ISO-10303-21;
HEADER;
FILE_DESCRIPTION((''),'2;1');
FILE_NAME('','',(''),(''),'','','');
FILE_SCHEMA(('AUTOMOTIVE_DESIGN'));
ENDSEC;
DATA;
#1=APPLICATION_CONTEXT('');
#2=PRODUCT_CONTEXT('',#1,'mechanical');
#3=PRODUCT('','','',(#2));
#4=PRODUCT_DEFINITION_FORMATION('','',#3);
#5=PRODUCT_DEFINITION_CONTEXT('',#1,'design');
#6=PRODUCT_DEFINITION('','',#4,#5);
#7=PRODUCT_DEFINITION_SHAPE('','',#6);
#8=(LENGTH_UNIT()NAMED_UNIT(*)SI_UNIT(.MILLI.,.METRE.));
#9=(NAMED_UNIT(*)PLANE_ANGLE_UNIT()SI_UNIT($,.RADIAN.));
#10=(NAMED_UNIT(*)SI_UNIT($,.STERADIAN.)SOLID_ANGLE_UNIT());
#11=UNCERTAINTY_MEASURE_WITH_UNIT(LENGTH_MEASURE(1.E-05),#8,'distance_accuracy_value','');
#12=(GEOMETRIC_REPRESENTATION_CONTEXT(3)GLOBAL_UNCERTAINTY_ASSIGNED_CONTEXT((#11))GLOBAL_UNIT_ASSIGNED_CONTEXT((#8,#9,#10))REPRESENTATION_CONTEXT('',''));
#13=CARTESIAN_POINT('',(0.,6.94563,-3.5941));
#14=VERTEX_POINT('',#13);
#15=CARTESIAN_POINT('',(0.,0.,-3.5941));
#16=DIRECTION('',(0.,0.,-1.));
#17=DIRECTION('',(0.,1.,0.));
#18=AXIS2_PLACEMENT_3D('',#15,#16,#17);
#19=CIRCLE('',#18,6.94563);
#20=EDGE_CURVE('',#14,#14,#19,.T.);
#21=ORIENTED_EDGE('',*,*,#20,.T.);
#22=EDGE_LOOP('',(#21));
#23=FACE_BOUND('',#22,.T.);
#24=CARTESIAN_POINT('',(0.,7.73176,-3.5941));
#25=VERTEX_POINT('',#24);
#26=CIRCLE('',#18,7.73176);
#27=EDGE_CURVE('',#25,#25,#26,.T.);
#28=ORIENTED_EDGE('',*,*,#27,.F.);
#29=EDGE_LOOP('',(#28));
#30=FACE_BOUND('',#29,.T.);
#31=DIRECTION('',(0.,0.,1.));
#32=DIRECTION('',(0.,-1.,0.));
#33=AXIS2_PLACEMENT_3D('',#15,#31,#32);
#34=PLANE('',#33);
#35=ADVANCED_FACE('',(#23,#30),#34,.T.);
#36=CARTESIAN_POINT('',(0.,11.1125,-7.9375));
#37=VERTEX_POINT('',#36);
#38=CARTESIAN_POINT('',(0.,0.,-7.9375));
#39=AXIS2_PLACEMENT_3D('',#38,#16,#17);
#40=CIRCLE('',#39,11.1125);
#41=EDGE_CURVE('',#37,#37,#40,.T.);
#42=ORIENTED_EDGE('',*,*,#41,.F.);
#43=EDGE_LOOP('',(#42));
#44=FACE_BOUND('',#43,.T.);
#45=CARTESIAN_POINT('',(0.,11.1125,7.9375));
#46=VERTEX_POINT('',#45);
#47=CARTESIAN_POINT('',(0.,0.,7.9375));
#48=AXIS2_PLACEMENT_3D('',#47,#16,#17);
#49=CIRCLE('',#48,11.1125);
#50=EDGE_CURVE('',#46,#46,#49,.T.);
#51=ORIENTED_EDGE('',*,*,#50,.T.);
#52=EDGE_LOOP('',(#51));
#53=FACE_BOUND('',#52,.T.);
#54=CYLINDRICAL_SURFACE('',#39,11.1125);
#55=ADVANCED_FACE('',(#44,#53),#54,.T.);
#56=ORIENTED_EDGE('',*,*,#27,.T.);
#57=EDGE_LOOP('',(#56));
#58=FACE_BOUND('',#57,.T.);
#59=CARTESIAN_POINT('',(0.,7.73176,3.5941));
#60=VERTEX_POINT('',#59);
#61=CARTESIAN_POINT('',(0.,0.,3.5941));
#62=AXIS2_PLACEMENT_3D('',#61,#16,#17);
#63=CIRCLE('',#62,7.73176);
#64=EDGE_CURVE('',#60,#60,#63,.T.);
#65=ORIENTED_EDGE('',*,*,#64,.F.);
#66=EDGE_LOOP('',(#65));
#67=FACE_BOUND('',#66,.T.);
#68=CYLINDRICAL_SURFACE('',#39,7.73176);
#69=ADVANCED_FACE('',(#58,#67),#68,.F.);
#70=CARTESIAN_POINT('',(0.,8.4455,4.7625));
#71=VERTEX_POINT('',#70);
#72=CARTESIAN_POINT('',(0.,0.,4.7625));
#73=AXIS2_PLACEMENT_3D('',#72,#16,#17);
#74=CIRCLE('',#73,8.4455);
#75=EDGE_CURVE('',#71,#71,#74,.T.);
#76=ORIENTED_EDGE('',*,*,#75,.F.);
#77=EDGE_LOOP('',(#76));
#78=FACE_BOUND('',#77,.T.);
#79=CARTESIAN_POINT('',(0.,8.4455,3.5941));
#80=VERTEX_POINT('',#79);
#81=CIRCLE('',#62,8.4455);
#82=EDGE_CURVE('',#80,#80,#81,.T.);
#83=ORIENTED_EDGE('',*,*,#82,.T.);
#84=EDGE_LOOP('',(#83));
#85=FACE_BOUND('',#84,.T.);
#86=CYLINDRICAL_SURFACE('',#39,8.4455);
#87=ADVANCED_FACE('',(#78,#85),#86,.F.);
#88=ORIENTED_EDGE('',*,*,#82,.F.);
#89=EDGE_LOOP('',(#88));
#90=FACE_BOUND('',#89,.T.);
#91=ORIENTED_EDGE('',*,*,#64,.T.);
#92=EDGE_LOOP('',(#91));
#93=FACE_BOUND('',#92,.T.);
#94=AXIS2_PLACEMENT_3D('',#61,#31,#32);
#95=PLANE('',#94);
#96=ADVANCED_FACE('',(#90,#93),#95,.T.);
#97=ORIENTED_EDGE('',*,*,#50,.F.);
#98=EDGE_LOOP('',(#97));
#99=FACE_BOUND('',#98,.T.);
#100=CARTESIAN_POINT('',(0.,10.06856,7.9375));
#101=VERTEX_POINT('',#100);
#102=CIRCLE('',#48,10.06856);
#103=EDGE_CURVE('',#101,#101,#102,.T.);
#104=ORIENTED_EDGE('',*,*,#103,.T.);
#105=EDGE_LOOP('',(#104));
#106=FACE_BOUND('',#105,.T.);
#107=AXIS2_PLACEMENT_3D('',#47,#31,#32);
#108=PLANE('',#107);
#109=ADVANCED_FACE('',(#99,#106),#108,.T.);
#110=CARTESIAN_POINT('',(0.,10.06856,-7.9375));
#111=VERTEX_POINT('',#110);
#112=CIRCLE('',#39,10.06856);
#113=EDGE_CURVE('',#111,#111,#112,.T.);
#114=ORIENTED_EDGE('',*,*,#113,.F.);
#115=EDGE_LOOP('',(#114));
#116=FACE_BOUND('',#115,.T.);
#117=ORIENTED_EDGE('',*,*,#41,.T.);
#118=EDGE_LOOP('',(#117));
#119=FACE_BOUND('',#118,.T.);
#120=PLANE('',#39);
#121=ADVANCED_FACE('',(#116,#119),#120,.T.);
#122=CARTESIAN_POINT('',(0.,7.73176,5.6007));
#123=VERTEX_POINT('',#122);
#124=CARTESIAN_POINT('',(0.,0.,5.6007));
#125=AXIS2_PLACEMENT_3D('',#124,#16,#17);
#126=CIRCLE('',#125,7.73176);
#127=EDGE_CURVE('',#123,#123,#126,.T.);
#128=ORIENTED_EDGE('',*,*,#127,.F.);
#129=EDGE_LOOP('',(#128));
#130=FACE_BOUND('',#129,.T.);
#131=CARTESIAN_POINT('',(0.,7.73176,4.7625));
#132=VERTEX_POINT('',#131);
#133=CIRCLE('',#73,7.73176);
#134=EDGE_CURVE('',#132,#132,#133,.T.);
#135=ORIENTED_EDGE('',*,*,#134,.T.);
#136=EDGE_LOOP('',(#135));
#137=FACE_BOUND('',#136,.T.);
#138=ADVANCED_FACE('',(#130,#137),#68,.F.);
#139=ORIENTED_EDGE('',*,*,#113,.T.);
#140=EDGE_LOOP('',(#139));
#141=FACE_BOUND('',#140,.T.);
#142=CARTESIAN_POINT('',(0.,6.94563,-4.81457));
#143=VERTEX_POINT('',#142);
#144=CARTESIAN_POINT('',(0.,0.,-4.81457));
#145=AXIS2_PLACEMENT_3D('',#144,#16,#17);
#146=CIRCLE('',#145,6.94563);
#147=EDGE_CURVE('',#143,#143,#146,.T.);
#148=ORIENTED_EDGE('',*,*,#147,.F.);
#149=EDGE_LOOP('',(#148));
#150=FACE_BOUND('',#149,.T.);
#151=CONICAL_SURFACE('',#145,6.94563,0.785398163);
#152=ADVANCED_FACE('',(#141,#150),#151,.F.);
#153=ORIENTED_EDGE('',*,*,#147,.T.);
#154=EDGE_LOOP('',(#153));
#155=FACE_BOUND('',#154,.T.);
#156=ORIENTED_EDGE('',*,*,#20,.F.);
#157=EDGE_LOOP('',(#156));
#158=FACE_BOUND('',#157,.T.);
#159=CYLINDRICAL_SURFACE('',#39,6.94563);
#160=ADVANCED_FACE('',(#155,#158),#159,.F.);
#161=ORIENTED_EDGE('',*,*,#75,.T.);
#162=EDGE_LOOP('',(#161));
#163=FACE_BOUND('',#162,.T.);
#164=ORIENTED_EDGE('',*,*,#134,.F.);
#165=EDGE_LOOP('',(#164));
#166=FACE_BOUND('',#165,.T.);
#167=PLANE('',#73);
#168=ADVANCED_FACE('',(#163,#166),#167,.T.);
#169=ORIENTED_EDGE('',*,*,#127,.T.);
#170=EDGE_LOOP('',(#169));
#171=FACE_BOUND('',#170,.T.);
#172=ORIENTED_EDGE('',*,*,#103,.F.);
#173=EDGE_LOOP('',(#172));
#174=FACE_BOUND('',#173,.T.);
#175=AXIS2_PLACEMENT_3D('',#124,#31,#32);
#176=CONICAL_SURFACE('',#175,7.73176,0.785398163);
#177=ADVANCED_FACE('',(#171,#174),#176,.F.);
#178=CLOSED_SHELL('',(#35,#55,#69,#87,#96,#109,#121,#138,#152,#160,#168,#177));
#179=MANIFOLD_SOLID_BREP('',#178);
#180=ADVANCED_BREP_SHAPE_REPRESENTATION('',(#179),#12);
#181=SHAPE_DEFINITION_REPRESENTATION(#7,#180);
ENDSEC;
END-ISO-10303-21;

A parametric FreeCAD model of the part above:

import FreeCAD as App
import Part
import Sketcher

V = App.Vector
Q = App.Units.Quantity


def add_polygon(sketch, points):
    """Adds a closed chain of lines whose ends are joined by coincident constraints."""
    first, n = sketch.GeometryCount, len(points)
    for a, b in zip(points, points[1:] + points[:1]):
        sketch.addGeometry(Part.LineSegment(App.Vector(*a, 0), App.Vector(*b, 0)), False)
    for i in range(n):
        sketch.addConstraint(Sketcher.Constraint("Coincident", first + i, 2, first + (i + 1) % n, 1))

doc = App.newDocument("Part")
params = doc.addObject("Spreadsheet::Sheet", "Params")
for row, (alias, value) in enumerate([
    ("sketch1_height", "0.283 in"),
    ("sketch1_height2", "0.046 in"),
    ("sketch1_height3", "0.033 in"),
    ("sketch1_height4", "0.625 in"),
    ("revolution_angle", "360 deg"),
], start=1):
    params.set(f"A{row}", alias)
    params.set(f"B{row}", "=" + value)
    params.setAlias(f"B{row}", alias)

body = doc.addObject("PartDesign::Body", "Body")

# Sketch on YZ plane
sketch1 = body.newObject("Sketcher::SketchObject", "Sketch")
sketch1.AttachmentSupport = (doc.getObject("YZ_Plane"), [""])
sketch1.MapMode = "FlatFace"
add_polygon(sketch1, [(-6.9, -4.8), (-6.9, -3.6), (-7.7, -3.6), (-7.7, 3.6), (-8.4, 3.6), (-8.4, 4.8), (-7.7, 4.8), (-7.7, 5.6), (-10.1, 7.9), (-11.1, 7.9), (-11.1, -7.9), (-10.1, -7.9)])  # lines 0-11
sketch1.addConstraint(Sketcher.Constraint("Vertical", 0))
sketch1.addConstraint(Sketcher.Constraint("Horizontal", 1))
sketch1.addConstraint(Sketcher.Constraint("Vertical", 2))
sketch1.addConstraint(Sketcher.Constraint("Horizontal", 3))
sketch1.addConstraint(Sketcher.Constraint("Vertical", 4))
sketch1.addConstraint(Sketcher.Constraint("Horizontal", 5))
sketch1.addConstraint(Sketcher.Constraint("Vertical", 6))
sketch1.addConstraint(Sketcher.Constraint("Horizontal", 8))
sketch1.addConstraint(Sketcher.Constraint("Vertical", 9))
sketch1.addConstraint(Sketcher.Constraint("Horizontal", 10))
sketch1.addConstraint(Sketcher.Constraint("Symmetric", 7, 2, 10, 2, -1))
sketch1.addConstraint(Sketcher.Constraint("Perpendicular", 7, 11))
sketch1.addConstraint(Sketcher.Constraint("Vertical", 2, 2, 5, 2))
sketch1.addConstraint(Sketcher.Constraint("Angle", 7, Q("135 deg")))
sketch1.addConstraint(Sketcher.Constraint("DistanceY", 9, 2, 4, 2, Q("0.5 in")))
sketch1.addConstraint(Sketcher.Constraint("DistanceY", 2, 1, 2, 2, Q("0.283 in")))
sketch1.addConstraint(Sketcher.Constraint("DistanceY", 4, 1, 4, 2, Q("0.046 in")))
sketch1.addConstraint(Sketcher.Constraint("DistanceY", 6, 1, 6, 2, Q("0.033 in")))
sketch1.addConstraint(Sketcher.Constraint("DistanceY", 9, 2, 9, 1, Q("0.625 in")))
sketch1.addConstraint(Sketcher.Constraint("DistanceX", 3, 2, 3, 1, Q("0.0281 in")))
sketch1.addConstraint(Sketcher.Constraint("DistanceX", 8, 2, 8, 1, Q("0.0411 in")))
sketch1.addConstraint(Sketcher.Constraint("DistanceX", 8, 2, -1, 1, Q("0.4375 in")))
sketch1.addConstraint(Sketcher.Constraint("DistanceX", 1, 2, 1, 1, Q("0.78613 mm")))
sketch1.setExpression("Constraints[27]", "Params.sketch1_height")
sketch1.setExpression("Constraints[28]", "Params.sketch1_height2")
sketch1.setExpression("Constraints[29]", "Params.sketch1_height3")
sketch1.setExpression("Constraints[30]", "Params.sketch1_height4")
revolution = body.newObject("PartDesign::Revolution", "Revolution")
revolution.Profile = sketch1
revolution.ReferenceAxis = (sketch1, ["V_Axis"])
revolution.setExpression("Angle", "Params.revolution_angle")

doc.recompute()
